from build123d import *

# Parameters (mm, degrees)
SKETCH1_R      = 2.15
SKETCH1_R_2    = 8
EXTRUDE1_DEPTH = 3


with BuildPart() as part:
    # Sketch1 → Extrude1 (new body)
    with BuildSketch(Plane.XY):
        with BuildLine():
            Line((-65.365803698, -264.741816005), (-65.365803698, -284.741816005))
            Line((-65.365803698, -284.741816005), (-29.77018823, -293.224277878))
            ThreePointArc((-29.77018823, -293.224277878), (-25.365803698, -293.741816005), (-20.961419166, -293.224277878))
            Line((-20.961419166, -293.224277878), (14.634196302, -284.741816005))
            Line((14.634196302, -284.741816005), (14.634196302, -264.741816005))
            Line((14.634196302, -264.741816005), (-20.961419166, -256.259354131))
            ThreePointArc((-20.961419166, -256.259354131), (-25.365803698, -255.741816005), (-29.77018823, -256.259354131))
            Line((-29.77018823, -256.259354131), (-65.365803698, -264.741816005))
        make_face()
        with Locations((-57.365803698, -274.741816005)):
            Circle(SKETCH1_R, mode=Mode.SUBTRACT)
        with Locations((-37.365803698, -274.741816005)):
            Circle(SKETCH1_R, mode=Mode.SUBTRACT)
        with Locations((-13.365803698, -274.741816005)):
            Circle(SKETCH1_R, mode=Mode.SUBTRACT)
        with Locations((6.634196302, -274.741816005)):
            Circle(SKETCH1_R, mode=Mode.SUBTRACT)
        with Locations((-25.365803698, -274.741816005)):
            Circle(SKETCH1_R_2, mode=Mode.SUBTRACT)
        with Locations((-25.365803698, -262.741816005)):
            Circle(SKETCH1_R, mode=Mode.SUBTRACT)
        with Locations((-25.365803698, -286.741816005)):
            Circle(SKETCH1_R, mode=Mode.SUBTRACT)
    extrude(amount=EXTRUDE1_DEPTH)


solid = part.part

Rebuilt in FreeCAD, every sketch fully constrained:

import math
import FreeCAD as App
import Part
import Sketcher

V = App.Vector
Q = App.Units.Quantity

doc = App.newDocument("Part")
body = doc.addObject("PartDesign::Body", "Body")

sketch1 = doc.addObject("Sketcher::SketchObject", "Sketch")
body.addObject(sketch1)
sketch1.AttachmentSupport = (doc.XY_Plane, [""])
sketch1.MapMode = "FlatFace"
sketch1.addGeometry([
    Part.LineSegment(V(-65.4, -264.7, 0), V(-65.4, -284.7, 0)),
    Part.LineSegment(V(-65.4, -284.7, 0), V(-29.8, -293.2, 0)),
    Part.ArcOfCircle(Part.Circle(V(-25.4, -274.7, 0), V(0, 0, 1), 19), math.radians(-103), math.radians(-77)),
    Part.LineSegment(V(-21, -293.2, 0), V(14.6, -284.7, 0)),
    Part.LineSegment(V(14.6, -284.7, 0), V(14.6, -264.7, 0)),
    Part.LineSegment(V(14.6, -264.7, 0), V(-21, -256.3, 0)),
    Part.ArcOfCircle(Part.Circle(V(-25.4, -274.7, 0), V(0, 0, 1), 19), math.radians(77), math.radians(103)),
    Part.LineSegment(V(-29.8, -256.3, 0), V(-65.4, -264.7, 0)),
    Part.Circle(V(-57.4, -274.7, 0), V(0, 0, 1), 2.1),
    Part.Circle(V(-37.4, -274.7, 0), V(0, 0, 1), 2.1),
    Part.Circle(V(-25.4, -286.7, 0), V(0, 0, 1), 2.1),
    Part.Circle(V(-25.4, -274.7, 0), V(0, 0, 1), 8),
    Part.Circle(V(-13.4, -274.7, 0), V(0, 0, 1), 2.1),
    Part.Circle(V(6.6, -274.7, 0), V(0, 0, 1), 2.1),
    Part.Circle(V(-25.4, -262.7, 0), V(0, 0, 1), 2.1),
], False)
sketch1.addConstraint([
    Sketcher.Constraint("Coincident", 0, 2, 1, 1),
    Sketcher.Constraint("Tangent", 1, 2, 2, 1),
    Sketcher.Constraint("Tangent", 2, 2, 3, 1),
    Sketcher.Constraint("Coincident", 3, 2, 4, 1),
    Sketcher.Constraint("Coincident", 4, 2, 5, 1),
    Sketcher.Constraint("Tangent", 5, 2, 6, 1),
    Sketcher.Constraint("Tangent", 6, 2, 7, 1),
    Sketcher.Constraint("Coincident", 7, 2, 0, 1),
    Sketcher.Constraint("Vertical", 0),
    Sketcher.Constraint("Vertical", 4),
    Sketcher.Constraint("Coincident", 6, 3, 2, 3),
    Sketcher.Constraint("Coincident", 11, 3, 2, 3),
    Sketcher.Constraint("Equal", 2, 6),
    Sketcher.Constraint("Equal", 8, 9),
    Sketcher.Constraint("Equal", 9, 10),
    Sketcher.Constraint("Equal", 10, 12),
    Sketcher.Constraint("Equal", 12, 13),
    Sketcher.Constraint("Equal", 13, 14),
    Sketcher.Constraint("Parallel", 1, 5),
    Sketcher.Constraint("Parallel", 3, 7),
    Sketcher.Constraint("Horizontal", 6, 3, 8, 3),
    Sketcher.Constraint("Horizontal", 8, 3, 9, 3),
    Sketcher.Constraint("Horizontal", 11, 3, 12, 3),
    Sketcher.Constraint("Horizontal", 12, 3, 13, 3),
    Sketcher.Constraint("Horizontal", 1, 2, 2, 2),
    Sketcher.Constraint("Horizontal", 0, 2, 3, 2),
    Sketcher.Constraint("Vertical", 6, 3, 10, 3),
    Sketcher.Constraint("Vertical", 11, 3, 14, 3),
    Sketcher.Constraint("Diameter", 11, Q("16 mm")),
    Sketcher.Constraint("Radius", 2, Q("19 mm")),
    Sketcher.Constraint("Diameter", 8, Q("4.3 mm")),
    Sketcher.Constraint("DistanceY", 0, 2, 0, 1, Q("20 mm")),
    Sketcher.Constraint("DistanceX", 8, 3, 2, 3, Q("32 mm")),
    Sketcher.Constraint("DistanceX", 9, 3, 2, 3, Q("12 mm")),
    Sketcher.Constraint("DistanceY", 10, 3, 6, 3, Q("12 mm")),
    Sketcher.Constraint("DistanceX", 2, 3, 12, 3, Q("12 mm")),
    Sketcher.Constraint("DistanceX", 12, 3, 13, 3, Q("20 mm")),
    Sketcher.Constraint("DistanceY", 11, 3, 14, 3, Q("12 mm")),
    Sketcher.Constraint("DistanceX", 0, 2, 8, 3, Q("8 mm")),
    Sketcher.Constraint("DistanceX", 1, 2, -1, 1, Q("29.770188 mm")),
    Sketcher.Constraint("DistanceY", 2, 3, -1, 1, Q("274.741816 mm")),
])
pad1 = doc.addObject("PartDesign::Pad", "Pad")
body.addObject(pad1)
pad1.Profile = sketch1
pad1.Length = 3

doc.recompute()
